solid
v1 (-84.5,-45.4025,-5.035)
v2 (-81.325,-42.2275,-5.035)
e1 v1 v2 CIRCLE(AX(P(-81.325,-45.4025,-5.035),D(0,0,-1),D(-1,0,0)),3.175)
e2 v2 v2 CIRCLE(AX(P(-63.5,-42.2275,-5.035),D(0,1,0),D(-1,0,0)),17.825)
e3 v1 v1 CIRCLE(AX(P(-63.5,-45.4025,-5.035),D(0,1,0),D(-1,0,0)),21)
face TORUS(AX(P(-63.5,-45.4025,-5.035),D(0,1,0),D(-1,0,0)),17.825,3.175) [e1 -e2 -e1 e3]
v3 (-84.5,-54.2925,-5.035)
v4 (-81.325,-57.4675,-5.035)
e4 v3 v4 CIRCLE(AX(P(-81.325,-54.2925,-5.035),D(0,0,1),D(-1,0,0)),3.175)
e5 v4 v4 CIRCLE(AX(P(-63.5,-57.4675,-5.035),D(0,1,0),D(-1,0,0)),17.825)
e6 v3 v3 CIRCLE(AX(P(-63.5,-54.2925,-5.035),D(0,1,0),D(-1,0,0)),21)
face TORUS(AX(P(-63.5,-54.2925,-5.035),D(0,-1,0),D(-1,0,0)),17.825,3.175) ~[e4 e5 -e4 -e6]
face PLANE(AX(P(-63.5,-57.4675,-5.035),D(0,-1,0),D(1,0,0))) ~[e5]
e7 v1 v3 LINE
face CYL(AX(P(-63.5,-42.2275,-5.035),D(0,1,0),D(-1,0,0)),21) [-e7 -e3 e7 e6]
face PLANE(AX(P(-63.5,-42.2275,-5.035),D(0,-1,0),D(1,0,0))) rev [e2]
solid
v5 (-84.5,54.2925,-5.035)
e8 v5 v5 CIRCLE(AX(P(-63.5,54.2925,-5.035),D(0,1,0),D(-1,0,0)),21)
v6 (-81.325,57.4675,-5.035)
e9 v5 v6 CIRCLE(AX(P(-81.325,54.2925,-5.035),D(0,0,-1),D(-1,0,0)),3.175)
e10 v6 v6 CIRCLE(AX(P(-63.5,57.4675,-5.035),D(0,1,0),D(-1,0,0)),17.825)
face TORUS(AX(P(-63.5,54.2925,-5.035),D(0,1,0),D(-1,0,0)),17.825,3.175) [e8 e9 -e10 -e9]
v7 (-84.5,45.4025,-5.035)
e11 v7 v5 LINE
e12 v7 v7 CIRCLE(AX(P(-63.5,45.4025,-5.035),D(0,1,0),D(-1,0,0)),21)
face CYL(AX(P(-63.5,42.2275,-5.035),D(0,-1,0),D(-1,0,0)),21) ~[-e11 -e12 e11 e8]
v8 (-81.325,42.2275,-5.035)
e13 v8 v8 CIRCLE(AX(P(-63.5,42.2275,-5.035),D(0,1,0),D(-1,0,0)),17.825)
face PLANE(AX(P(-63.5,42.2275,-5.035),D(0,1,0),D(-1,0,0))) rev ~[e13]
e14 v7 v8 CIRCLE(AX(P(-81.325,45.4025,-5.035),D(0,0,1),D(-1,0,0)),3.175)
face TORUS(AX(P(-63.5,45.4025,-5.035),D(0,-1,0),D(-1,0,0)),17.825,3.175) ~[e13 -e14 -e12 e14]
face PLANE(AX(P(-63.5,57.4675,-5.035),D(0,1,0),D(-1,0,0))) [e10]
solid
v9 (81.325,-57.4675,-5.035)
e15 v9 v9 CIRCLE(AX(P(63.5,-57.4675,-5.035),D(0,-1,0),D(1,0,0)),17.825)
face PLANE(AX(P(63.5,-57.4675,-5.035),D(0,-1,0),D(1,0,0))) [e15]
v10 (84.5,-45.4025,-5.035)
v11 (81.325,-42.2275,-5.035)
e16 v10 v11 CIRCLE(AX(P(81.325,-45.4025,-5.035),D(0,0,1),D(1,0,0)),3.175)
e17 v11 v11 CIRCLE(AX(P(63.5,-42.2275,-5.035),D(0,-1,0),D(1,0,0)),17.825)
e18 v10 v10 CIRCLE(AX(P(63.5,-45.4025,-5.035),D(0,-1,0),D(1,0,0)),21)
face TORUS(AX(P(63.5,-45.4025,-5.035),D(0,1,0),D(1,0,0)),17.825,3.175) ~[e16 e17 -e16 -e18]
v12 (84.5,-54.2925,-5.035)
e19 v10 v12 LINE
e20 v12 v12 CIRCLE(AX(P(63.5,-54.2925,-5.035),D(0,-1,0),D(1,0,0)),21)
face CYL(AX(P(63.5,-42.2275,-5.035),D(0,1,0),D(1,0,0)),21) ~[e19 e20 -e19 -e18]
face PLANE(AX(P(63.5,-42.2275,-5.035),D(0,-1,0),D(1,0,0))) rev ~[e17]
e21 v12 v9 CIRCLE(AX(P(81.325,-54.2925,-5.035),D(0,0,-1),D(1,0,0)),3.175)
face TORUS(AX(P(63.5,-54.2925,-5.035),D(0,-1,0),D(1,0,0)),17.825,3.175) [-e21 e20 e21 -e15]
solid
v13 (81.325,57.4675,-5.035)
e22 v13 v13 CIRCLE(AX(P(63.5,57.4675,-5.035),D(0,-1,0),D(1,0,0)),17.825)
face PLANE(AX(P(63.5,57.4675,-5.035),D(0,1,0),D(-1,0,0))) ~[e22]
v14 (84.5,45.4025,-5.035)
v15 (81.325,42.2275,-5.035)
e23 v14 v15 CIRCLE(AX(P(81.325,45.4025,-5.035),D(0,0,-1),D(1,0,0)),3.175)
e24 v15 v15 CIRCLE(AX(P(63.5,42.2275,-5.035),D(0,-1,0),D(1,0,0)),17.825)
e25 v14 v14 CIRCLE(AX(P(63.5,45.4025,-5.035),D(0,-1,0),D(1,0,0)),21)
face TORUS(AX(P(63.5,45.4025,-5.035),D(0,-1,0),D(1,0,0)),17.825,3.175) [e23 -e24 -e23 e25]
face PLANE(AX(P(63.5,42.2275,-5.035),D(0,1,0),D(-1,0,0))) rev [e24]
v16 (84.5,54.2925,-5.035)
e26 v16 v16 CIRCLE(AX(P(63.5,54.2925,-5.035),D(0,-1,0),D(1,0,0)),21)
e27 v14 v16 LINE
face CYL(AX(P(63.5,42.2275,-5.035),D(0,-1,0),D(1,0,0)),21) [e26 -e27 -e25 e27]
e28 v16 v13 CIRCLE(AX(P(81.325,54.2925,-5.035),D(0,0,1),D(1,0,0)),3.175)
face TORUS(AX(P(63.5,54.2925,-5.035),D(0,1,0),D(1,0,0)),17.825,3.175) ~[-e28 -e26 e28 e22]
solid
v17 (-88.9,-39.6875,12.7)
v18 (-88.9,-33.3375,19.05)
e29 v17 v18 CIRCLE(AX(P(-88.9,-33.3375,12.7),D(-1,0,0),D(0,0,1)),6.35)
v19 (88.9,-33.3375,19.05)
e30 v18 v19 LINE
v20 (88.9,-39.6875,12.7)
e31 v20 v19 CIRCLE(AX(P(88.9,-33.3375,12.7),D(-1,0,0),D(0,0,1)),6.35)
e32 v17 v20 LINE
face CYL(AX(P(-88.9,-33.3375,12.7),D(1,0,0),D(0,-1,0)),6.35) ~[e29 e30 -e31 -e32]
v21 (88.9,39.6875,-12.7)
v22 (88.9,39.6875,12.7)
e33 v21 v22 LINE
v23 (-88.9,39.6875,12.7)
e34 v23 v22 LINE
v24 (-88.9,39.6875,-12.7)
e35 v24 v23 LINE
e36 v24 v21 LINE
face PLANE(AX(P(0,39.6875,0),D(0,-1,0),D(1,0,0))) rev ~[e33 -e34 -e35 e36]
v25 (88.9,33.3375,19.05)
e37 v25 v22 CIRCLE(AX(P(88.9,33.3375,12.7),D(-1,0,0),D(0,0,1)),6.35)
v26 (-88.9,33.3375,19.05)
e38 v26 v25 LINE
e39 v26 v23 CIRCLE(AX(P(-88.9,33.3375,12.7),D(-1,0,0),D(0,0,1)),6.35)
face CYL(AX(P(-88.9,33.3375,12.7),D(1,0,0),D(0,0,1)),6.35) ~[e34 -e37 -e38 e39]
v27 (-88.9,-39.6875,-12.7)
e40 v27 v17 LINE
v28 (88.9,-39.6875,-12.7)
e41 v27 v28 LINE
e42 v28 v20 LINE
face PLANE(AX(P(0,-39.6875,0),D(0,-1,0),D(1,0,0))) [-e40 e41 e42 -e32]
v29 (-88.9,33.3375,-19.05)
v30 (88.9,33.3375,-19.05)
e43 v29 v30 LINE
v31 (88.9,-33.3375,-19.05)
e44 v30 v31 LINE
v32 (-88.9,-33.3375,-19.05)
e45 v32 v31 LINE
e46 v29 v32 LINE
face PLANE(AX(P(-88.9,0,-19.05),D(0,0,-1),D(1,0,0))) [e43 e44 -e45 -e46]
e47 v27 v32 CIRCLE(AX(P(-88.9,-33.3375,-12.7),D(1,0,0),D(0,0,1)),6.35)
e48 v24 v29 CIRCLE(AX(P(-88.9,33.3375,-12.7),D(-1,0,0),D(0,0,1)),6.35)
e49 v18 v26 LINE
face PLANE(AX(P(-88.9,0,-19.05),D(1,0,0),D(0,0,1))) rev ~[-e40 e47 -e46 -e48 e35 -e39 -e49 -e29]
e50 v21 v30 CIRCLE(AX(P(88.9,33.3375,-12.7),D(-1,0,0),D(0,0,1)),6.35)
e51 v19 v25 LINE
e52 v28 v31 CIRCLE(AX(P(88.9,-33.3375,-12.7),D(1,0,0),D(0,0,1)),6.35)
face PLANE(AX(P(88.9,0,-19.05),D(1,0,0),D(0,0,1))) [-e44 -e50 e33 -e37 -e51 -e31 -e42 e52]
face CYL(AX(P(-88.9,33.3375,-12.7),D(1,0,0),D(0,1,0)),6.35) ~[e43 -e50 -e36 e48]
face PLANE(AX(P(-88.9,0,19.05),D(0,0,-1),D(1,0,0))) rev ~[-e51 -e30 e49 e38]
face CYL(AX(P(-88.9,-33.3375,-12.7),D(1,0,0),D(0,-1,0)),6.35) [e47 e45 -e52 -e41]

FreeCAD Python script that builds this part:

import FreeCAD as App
import Part
import Sketcher
from FreeCAD import Vector
Q = App.Units.Quantity


def edges_at(feature, points):
    """Names of the edges that pass closest to the given points."""
    edges = feature.Shape.Edges
    near = lambda p: min(range(len(edges)), key=lambda i: edges[i].distToShape(Part.Vertex(*p))[0])
    return sorted({f"Edge{near(p) + 1}" for p in points})


def add_polygon(sketch, points):
    """Adds a closed chain of lines whose ends are joined by coincident constraints."""
    first, n = sketch.GeometryCount, len(points)
    for a, b in zip(points, points[1:] + points[:1]):
        sketch.addGeometry(Part.LineSegment(App.Vector(*a, 0), App.Vector(*b, 0)), False)
    for i in range(n):
        sketch.addConstraint(Sketcher.Constraint("Coincident", first + i, 2, first + (i + 1) % n, 1))

doc = App.newDocument("Part")
body = doc.addObject("PartDesign::Body", "Body")

# Sketch on XZ plane
sketch1 = doc.addObject("Sketcher::SketchObject", "Sketch")
body.addObject(sketch1)
sketch1.AttachmentSupport = (doc.XZ_Plane, [""])
sketch1.MapMode = "FlatFace"
add_polygon(sketch1, [(-88.9, 19.05), (-88.9, -19.05), (88.9, -19.05), (88.9, 19.05)])  # lines 0-3
sketch1.addConstraint([
    Sketcher.Constraint("Vertical", 0),
    Sketcher.Constraint("Horizontal", 1),
    Sketcher.Constraint("Vertical", 2),
    Sketcher.Constraint("Horizontal", 3),
    Sketcher.Constraint("Symmetric", 0, 2, 2, 2, -1, 1),
    Sketcher.Constraint("DistanceX", 1, 1, 1, 2, Q("7 in")),
    Sketcher.Constraint("DistanceY", 0, 2, 0, 1, Q("1.5 in")),
])
pad1 = doc.addObject("PartDesign::Pad", "Pad")
body.addObject(pad1)
pad1.Profile = sketch1
pad1.Length = Q("3.125 in")
pad1.Midplane = True
doc.recompute()

fillet = doc.addObject("PartDesign::Fillet", "Fillet")
body.addObject(fillet)
fillet.Base = (pad1, edges_at(pad1, [(0, -39.688, 19.05)]))
fillet.Radius = Q("0.25 in")
doc.recompute()

fillet2 = doc.addObject("PartDesign::Fillet", "Fillet001")
body.addObject(fillet2)
fillet2.Base = (fillet, edges_at(fillet, [(0, -39.688, -19.05), (0, 39.688, 19.05)]))
fillet2.Radius = Q("0.25 in")
doc.recompute()

fillet3 = doc.addObject("PartDesign::Fillet", "Fillet002")
body.addObject(fillet3)
fillet3.Base = (fillet2, edges_at(fillet2, [(0, 39.688, -19.05)]))
fillet3.Radius = Q("0.25 in")
body2 = doc.addObject("PartDesign::Body", "Body001")

# Sketch on XZ plane
sketch2 = doc.addObject("Sketcher::SketchObject", "Sketch001")
body2.addObject(sketch2)
sketch2.AttachmentSupport = (doc.getObject("XZ_Plane001"), [""])
sketch2.MapMode = "FlatFace"
sketch2.AttachmentOffset = App.Placement(Vector(0, 0, 1.6625 * 25.4), App.Rotation())
sketch2.addGeometry(Part.Circle(Vector(63.5, -5.035, 0), Vector(0, 0, 1), 21), False)
sketch2.addConstraint([
    Sketcher.Constraint("DistanceX", -1, 1, 0, 3, Q("2.5 in")),
    Sketcher.Constraint("Diameter", 0, 42.0),
    Sketcher.Constraint("DistanceY", 0, 3, -1, 1, 5.035),
])
pad2 = doc.addObject("PartDesign::Pad", "Pad001")
body2.addObject(pad2)
pad2.Profile = sketch2
pad2.Length = Q("0.6 in")
doc.recompute()

fillet4 = doc.addObject("PartDesign::Fillet", "Fillet003")
body2.addObject(fillet4)
fillet4.Base = (pad2, edges_at(pad2, [(42.5, -57.468, -5.035)]))
fillet4.Radius = Q("0.125 in")
doc.recompute()

fillet5 = doc.addObject("PartDesign::Fillet", "Fillet004")
body2.addObject(fillet5)
fillet5.Base = (fillet4, edges_at(fillet4, [(42.5, -42.227, -5.035)]))
fillet5.Radius = Q("0.125 in")
body3 = doc.addObject("PartDesign::Body", "Body002")
doc.recompute()

mirroring = doc.addObject("Part::Mirroring", "Mirroring")
mirroring.Source = body2
mirroring.Base = Vector(0, 0, 0)
mirroring.Normal = Vector(0, -1, 0)
body3.BaseFeature = mirroring
doc.recompute()
body4 = doc.addObject("PartDesign::Body", "Body003")
doc.recompute()

mirroring2 = doc.addObject("Part::Mirroring", "Mirroring001")
mirroring2.Source = body2
mirroring2.Base = Vector(0, 0, 0)
mirroring2.Normal = Vector(1, 0, 0)
body4.BaseFeature = mirroring2
doc.recompute()
body5 = doc.addObject("PartDesign::Body", "Body004")
doc.recompute()

mirroring3 = doc.addObject("Part::Mirroring", "Mirroring002")
mirroring3.Source = body3
mirroring3.Base = Vector(0, 0, 0)
mirroring3.Normal = Vector(1, 0, 0)
body5.BaseFeature = mirroring3
doc.recompute()
mirroring.Visibility = False
mirroring2.Visibility = False
mirroring3.Visibility = False

doc.recompute()
